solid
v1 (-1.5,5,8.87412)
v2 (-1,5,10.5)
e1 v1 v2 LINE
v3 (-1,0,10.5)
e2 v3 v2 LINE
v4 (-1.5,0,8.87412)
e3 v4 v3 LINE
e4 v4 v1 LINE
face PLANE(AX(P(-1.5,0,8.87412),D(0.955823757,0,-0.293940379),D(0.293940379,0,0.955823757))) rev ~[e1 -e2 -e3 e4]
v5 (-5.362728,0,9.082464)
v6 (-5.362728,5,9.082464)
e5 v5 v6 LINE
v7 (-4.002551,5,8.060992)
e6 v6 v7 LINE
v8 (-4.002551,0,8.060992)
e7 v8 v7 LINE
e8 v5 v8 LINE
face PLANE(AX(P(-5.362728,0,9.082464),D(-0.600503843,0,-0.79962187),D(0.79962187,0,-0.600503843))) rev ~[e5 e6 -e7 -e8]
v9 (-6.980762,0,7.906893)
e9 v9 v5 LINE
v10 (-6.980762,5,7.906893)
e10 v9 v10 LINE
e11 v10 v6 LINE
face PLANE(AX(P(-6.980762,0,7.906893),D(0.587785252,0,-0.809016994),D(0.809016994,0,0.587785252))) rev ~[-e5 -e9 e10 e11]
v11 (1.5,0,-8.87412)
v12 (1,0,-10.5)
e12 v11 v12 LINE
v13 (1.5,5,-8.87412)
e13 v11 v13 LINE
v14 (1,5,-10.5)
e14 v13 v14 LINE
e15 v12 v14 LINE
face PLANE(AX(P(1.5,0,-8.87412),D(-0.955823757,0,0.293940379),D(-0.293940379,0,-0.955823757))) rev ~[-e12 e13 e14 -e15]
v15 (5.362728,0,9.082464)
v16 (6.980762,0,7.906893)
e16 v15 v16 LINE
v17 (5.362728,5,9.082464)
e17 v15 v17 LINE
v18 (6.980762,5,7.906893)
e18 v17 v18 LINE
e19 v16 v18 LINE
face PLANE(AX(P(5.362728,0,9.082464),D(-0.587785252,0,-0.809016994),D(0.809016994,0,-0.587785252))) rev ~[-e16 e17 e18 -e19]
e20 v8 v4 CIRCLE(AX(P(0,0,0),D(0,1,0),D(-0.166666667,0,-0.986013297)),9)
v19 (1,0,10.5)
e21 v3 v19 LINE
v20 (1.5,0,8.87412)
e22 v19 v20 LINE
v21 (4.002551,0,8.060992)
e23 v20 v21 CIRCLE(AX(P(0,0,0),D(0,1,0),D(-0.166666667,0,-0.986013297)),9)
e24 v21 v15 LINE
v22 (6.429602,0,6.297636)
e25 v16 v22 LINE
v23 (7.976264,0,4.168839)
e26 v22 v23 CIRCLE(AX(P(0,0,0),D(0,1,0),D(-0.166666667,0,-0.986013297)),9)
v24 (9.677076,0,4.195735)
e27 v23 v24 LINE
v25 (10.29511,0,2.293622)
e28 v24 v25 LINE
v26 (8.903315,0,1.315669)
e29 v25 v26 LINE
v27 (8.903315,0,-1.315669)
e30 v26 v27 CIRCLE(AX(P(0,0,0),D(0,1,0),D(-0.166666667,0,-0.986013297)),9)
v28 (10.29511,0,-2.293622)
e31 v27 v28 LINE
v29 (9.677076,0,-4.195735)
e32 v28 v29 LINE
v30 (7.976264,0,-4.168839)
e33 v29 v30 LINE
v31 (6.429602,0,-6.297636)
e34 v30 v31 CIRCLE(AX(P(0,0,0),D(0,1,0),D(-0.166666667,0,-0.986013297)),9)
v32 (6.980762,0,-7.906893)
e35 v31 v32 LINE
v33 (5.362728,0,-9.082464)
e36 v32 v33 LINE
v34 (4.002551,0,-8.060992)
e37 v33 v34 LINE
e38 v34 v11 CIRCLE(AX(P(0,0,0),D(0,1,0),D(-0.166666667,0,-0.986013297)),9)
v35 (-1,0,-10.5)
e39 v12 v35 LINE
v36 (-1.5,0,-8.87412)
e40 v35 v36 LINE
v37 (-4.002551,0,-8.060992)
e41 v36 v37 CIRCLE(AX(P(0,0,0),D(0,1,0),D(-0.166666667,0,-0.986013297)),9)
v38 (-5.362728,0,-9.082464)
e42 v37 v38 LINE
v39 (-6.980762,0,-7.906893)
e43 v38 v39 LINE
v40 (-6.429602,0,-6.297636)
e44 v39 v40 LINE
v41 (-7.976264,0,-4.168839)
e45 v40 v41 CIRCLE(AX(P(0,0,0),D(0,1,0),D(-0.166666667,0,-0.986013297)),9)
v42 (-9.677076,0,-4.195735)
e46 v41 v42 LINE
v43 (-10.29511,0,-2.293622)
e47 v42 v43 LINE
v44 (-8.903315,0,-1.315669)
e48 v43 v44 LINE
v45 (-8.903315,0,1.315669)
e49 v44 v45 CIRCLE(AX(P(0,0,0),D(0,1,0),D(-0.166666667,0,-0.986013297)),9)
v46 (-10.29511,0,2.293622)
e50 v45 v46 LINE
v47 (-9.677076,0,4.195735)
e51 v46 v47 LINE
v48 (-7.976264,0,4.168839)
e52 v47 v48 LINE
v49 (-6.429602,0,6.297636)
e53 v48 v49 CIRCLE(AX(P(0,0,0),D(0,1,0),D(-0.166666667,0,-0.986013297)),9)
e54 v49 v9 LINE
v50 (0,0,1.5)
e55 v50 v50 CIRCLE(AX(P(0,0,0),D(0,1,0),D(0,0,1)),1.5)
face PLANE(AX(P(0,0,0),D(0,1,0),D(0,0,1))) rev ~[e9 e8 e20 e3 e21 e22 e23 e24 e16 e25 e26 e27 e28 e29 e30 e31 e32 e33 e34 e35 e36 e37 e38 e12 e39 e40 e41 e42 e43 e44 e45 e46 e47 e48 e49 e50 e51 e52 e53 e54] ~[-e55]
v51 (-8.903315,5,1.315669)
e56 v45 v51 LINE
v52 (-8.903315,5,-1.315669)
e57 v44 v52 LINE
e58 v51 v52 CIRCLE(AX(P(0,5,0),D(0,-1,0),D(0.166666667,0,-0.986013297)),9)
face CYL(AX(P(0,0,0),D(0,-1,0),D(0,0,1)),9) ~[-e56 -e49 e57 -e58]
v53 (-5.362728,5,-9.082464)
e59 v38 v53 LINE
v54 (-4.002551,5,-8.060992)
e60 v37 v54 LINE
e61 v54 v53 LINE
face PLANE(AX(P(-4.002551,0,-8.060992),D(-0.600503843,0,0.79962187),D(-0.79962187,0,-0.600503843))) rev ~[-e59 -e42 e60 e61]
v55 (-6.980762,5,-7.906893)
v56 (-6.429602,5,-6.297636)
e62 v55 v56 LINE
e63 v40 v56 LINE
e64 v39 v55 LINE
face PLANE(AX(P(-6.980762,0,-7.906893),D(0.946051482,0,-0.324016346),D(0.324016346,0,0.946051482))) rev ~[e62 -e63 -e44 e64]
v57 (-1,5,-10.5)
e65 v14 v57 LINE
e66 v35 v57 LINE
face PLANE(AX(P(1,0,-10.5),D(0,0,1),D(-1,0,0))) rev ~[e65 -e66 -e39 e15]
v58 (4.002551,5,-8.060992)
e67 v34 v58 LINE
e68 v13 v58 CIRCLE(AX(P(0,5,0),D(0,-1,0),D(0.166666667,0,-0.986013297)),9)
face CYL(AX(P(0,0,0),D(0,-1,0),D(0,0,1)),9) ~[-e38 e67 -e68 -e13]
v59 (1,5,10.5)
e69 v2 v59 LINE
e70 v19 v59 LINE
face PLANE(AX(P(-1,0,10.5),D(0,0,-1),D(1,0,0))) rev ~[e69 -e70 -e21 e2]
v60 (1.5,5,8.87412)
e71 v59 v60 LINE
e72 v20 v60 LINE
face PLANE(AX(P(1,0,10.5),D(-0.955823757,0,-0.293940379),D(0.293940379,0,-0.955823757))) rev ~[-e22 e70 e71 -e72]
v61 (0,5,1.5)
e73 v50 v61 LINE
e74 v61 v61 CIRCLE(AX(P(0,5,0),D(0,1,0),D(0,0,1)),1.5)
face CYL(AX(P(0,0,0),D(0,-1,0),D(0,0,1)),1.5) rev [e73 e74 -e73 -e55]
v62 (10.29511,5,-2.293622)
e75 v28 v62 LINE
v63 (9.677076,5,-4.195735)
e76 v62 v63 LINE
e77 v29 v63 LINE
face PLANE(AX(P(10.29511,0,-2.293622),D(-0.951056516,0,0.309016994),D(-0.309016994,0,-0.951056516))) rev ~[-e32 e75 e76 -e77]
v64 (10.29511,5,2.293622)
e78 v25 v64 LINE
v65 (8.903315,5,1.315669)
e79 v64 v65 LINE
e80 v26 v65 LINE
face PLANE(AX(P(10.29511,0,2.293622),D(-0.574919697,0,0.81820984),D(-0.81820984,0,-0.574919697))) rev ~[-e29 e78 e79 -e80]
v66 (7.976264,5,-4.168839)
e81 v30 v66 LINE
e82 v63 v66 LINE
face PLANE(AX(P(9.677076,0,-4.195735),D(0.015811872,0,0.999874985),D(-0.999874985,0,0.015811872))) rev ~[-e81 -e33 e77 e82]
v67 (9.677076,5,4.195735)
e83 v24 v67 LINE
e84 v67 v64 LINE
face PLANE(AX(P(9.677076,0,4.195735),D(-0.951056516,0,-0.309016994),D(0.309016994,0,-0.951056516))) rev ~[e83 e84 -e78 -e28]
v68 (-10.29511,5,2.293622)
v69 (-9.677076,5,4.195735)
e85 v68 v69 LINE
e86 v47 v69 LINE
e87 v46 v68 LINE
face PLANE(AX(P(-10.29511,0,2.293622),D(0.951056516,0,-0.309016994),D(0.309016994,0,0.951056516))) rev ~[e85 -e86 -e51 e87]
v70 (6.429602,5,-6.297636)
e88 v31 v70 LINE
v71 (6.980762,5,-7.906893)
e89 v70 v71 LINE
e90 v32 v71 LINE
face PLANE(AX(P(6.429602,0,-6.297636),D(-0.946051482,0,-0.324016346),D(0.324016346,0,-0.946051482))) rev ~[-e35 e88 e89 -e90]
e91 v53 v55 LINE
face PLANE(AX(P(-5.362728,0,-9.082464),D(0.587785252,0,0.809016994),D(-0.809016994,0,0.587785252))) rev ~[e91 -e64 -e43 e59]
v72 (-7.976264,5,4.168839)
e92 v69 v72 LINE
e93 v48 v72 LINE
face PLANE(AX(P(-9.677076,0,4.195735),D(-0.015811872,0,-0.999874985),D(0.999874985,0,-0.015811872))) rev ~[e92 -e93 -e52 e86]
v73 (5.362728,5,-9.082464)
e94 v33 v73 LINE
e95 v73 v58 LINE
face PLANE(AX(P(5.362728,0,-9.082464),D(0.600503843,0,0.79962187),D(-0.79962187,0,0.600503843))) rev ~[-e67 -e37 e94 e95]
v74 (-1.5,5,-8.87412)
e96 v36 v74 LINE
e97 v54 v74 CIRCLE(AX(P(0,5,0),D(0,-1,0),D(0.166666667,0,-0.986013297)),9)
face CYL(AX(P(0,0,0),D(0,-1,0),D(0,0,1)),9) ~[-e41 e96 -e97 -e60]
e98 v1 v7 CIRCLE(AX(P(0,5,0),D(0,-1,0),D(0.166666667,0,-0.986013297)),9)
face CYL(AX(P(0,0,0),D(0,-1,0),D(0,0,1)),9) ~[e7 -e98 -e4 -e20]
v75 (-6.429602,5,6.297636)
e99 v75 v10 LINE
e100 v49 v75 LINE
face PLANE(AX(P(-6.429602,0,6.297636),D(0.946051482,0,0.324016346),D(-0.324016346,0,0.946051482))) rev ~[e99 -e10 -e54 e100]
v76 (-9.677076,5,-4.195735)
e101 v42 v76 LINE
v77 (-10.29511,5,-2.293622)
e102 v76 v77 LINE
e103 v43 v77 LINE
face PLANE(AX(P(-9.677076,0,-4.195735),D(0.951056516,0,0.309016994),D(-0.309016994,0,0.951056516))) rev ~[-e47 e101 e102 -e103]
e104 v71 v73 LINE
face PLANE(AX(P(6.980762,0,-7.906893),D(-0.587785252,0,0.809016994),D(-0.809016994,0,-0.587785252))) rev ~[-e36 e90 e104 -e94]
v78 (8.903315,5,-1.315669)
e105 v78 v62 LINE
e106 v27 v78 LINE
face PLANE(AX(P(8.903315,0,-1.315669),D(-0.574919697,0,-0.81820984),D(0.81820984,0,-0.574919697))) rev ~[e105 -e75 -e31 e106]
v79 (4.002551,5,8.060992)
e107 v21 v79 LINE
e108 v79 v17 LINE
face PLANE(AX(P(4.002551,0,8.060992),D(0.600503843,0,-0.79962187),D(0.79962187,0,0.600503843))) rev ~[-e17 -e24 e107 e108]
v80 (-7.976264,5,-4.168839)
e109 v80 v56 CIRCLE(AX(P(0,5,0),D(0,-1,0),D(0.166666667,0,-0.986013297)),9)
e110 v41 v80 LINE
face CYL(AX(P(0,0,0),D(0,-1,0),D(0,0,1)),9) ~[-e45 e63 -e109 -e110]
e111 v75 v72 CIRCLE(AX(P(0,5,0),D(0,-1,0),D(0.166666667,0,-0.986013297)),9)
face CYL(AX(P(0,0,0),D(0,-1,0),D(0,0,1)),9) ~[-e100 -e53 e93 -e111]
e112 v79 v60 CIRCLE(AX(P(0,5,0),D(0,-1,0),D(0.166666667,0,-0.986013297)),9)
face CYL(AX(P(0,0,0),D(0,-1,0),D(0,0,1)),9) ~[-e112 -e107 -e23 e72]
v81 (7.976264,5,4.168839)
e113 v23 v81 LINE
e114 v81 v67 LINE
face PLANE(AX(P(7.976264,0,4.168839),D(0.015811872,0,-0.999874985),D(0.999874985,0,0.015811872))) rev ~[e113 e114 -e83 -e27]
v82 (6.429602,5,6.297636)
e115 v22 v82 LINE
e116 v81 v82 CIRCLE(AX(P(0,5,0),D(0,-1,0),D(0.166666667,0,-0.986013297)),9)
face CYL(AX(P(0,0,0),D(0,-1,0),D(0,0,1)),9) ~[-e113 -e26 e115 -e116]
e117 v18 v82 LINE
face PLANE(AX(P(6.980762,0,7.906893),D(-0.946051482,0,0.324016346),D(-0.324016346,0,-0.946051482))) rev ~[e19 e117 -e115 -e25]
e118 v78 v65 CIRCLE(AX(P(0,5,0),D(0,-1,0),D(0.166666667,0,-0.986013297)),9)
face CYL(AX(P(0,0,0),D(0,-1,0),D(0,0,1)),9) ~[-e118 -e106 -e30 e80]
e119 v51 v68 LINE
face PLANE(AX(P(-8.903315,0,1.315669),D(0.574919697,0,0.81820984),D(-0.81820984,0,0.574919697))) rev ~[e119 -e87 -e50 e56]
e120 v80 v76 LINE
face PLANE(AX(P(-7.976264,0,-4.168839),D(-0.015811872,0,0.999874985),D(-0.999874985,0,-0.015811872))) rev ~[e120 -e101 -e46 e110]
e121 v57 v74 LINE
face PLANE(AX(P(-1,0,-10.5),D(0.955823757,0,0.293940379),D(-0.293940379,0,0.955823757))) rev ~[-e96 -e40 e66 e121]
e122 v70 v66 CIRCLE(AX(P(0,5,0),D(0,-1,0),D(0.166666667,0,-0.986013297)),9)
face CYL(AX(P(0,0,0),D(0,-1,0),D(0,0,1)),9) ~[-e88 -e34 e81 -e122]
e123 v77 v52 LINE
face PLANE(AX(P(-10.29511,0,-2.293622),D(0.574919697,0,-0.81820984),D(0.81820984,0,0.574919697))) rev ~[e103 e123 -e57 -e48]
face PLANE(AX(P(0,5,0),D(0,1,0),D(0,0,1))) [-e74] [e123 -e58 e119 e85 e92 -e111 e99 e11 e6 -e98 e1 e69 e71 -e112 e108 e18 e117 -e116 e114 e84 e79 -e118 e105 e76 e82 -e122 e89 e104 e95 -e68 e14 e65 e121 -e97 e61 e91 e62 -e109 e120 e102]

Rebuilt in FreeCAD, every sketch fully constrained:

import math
import FreeCAD as App
import Part
import Sketcher

V = App.Vector
Q = App.Units.Quantity

doc = App.newDocument("Part")
body = doc.addObject("PartDesign::Body", "Body")

sketch1 = body.newObject("Sketcher::SketchObject", "Sketch")
sketch1.AttachmentSupport = (doc.getObject("XZ_Plane"), [""])
sketch1.MapMode = "FlatFace"
sketch1.addGeometry(Part.Circle(V(0, 0, 0), V(0, 0, 1), 9), False)
sketch1.addGeometry(Part.Circle(V(0, 0, 0), V(0, 0, 1), 1.5), False)
sketch1.addConstraint(Sketcher.Constraint("Coincident", 0, 3, -1, 1))
sketch1.addConstraint(Sketcher.Constraint("Coincident", 1, 3, -1, 1))
sketch1.addConstraint(Sketcher.Constraint("Diameter", 0, Q("18 mm")))
sketch1.addConstraint(Sketcher.Constraint("Diameter", 1, Q("3 mm")))
pad1 = body.newObject("PartDesign::Pad", "Pad")
pad1.Profile = sketch1
pad1.Length = 5
pad1.Reversed = True

sketch2 = body.newObject("Sketcher::SketchObject", "Sketch001")
sketch2.AttachmentSupport = (doc.getObject("XZ_Plane"), [""])
sketch2.MapMode = "FlatFace"
sketch2.addGeometry(Part.LineSegment(V(1.5, -8.87412, 0), V(1, -10.5, 0)), False)
sketch2.addGeometry(Part.LineSegment(V(1, -10.5, 0), V(-1, -10.5, 0)), False)
sketch2.addGeometry(Part.LineSegment(V(-1, -10.5, 0), V(-1.5, -8.87412, 0)), False)
sketch2.addGeometry(Part.ArcOfCircle(Part.Circle(V(0, 0, 0), V(0, 0, 1), 9), math.radians(-99.594068), math.radians(-80.405932)), False)
sketch2.addConstraint(Sketcher.Constraint("Coincident", 0, 2, 1, 1))
sketch2.addConstraint(Sketcher.Constraint("Coincident", 1, 2, 2, 1))
sketch2.addConstraint(Sketcher.Constraint("Coincident", 2, 2, 3, 1))
sketch2.addConstraint(Sketcher.Constraint("Coincident", 3, 2, 0, 1))
sketch2.addConstraint(Sketcher.Constraint("Horizontal", 1))
sketch2.addConstraint(Sketcher.Constraint("Coincident", 3, 3, -1, 1))
sketch2.addConstraint(Sketcher.Constraint("Horizontal", 2, 2, 3, 2))
sketch2.addConstraint(Sketcher.Constraint("Equal", 0, 2))
sketch2.addConstraint(Sketcher.Constraint("Radius", 3, Q("9 mm")))
sketch2.addConstraint(Sketcher.Constraint("DistanceX", 1, 2, 1, 1, Q("2 mm")))
sketch2.addConstraint(Sketcher.Constraint("DistanceX", 2, 2, 3, 2, Q("3 mm")))
sketch2.addConstraint(Sketcher.Constraint("DistanceY", 0, 2, -1, 1, Q("10.5 mm")))
pad2 = body.newObject("PartDesign::Pad", "Pad001")
pad2.Profile = sketch2
pad2.Length = 5
pad2.Reversed = True
doc.recompute()

polarpattern = body.newObject("PartDesign::PolarPattern", "PolarPattern")
polarpattern.Originals = [pad2]
polarpattern.Axis = (doc.getObject("Y_Axis"), [""])
polarpattern.Angle = 360
polarpattern.Occurrences = 10
body.Tip = polarpattern

doc.recompute()
